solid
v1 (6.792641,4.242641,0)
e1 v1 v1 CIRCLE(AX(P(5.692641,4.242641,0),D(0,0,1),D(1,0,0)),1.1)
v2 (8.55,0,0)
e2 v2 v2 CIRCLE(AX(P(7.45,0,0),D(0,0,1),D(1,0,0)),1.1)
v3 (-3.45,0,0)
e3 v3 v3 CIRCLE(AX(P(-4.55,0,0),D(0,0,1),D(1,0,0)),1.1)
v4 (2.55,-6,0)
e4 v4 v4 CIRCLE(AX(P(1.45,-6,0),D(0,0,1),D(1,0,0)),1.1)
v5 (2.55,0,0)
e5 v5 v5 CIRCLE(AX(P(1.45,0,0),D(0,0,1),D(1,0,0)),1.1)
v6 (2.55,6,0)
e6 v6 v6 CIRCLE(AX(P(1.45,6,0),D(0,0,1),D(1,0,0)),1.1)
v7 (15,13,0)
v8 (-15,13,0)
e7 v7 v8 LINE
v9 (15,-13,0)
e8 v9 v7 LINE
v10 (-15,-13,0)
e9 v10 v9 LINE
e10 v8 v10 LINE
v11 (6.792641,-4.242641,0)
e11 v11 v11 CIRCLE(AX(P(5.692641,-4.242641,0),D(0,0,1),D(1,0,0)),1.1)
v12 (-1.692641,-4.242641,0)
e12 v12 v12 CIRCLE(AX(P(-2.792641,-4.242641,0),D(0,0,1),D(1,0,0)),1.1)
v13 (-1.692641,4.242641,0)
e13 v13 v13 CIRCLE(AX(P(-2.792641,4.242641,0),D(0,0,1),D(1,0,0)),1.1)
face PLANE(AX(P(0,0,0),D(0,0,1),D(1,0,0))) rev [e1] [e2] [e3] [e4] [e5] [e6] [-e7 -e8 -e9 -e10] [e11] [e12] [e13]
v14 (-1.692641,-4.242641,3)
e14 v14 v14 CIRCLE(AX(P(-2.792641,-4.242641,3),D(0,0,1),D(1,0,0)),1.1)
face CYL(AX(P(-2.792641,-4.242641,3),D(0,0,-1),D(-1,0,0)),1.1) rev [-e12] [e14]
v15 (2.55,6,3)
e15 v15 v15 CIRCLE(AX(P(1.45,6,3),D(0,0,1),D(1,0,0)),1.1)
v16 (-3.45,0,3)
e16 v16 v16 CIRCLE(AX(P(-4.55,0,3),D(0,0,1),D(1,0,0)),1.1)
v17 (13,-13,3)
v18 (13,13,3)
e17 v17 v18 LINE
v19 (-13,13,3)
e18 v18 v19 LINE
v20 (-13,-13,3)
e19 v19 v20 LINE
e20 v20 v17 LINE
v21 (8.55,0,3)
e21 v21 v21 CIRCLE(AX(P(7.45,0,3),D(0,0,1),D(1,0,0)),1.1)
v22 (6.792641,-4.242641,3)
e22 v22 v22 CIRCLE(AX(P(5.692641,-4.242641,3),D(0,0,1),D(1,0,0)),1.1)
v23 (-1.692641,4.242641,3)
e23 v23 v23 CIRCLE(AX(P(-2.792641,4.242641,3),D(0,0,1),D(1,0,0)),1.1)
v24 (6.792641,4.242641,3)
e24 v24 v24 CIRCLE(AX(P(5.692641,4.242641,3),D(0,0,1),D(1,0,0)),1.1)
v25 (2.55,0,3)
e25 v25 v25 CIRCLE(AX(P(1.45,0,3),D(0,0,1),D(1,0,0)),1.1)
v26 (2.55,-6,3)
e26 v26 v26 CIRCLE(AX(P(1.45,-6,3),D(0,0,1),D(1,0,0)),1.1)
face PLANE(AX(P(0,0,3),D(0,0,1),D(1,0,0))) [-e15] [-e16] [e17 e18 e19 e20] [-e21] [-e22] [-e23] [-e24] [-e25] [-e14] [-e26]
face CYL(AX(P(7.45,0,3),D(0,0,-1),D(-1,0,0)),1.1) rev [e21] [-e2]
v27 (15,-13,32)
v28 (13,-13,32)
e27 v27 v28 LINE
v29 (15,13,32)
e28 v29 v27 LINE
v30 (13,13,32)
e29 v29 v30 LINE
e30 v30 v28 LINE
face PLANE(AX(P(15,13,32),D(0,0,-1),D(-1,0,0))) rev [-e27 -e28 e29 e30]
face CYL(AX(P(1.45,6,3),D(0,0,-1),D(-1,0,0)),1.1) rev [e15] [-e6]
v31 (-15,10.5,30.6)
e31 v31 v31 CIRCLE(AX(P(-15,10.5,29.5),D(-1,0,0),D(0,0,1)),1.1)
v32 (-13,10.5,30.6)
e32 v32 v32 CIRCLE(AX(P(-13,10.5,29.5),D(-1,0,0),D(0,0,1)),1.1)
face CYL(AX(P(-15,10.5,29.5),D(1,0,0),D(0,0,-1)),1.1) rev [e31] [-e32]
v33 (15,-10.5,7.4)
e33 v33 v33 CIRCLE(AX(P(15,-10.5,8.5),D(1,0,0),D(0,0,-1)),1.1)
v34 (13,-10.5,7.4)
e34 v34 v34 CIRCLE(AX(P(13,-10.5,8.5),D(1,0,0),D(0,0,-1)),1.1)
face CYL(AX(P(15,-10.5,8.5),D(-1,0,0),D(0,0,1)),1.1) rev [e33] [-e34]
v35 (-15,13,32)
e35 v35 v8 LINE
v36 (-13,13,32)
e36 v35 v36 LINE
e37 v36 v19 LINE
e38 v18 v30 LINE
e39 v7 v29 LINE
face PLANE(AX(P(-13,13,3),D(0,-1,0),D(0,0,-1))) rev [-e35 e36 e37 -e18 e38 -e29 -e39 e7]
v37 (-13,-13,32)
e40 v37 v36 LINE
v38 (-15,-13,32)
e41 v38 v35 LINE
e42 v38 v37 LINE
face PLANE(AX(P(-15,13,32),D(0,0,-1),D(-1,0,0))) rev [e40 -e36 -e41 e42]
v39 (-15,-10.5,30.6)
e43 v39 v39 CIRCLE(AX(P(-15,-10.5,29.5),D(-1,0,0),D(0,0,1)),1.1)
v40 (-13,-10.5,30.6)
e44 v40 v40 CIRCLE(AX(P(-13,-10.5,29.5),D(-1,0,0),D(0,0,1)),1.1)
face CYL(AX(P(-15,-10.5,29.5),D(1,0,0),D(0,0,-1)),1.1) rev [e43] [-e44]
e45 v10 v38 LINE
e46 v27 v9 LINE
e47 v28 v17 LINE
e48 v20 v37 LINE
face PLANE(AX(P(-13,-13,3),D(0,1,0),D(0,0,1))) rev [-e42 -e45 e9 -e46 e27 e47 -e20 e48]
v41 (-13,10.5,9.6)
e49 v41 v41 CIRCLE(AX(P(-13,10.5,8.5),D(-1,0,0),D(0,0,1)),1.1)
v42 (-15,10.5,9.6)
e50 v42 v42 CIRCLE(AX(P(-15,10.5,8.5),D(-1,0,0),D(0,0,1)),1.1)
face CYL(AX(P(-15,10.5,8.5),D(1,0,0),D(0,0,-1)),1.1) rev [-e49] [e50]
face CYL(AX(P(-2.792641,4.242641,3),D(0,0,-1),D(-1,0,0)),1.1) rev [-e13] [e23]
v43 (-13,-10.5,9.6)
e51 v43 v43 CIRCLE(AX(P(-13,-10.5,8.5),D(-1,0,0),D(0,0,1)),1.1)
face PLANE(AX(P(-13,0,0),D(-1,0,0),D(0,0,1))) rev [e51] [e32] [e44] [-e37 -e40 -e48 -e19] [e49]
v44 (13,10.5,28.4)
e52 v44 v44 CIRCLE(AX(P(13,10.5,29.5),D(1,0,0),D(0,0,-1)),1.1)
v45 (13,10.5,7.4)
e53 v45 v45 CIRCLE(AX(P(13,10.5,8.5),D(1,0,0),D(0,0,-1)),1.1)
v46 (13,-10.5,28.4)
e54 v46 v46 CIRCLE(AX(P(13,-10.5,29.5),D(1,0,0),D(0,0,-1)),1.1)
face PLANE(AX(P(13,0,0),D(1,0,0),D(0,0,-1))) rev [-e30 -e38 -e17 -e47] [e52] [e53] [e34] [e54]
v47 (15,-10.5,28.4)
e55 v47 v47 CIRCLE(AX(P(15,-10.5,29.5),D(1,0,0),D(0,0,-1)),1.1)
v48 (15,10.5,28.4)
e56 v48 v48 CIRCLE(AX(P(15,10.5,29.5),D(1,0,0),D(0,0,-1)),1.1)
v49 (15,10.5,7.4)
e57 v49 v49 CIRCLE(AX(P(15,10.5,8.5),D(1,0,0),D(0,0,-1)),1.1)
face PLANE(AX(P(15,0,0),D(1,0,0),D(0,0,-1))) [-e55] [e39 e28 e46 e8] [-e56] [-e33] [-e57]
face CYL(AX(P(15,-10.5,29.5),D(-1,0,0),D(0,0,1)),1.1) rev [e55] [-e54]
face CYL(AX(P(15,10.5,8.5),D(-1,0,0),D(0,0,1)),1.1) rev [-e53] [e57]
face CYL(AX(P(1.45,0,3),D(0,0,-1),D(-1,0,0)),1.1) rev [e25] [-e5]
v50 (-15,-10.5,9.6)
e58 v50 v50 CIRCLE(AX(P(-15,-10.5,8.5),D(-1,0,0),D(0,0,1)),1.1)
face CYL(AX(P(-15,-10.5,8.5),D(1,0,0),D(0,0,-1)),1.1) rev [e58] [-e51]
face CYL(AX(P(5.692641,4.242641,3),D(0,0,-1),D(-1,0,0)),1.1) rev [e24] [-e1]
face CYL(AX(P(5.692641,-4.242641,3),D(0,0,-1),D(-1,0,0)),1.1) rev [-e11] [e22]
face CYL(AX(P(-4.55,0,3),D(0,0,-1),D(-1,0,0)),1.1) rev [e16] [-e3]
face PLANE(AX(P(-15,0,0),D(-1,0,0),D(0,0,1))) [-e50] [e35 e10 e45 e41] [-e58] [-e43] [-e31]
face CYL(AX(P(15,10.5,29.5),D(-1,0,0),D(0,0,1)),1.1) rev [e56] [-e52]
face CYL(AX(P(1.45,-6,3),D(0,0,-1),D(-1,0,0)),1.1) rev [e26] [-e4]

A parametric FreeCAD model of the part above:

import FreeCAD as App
import Part
import Sketcher

V = App.Vector
Q = App.Units.Quantity

doc = App.newDocument("Part")
body = doc.addObject("PartDesign::Body", "Body")

# Sketch on XY plane
sketch1 = body.newObject("Sketcher::SketchObject", "Sketch")
sketch1.AttachmentSupport = (doc.getObject("XY_Plane"), [""])
sketch1.MapMode = "FlatFace"
sketch1.addGeometry([
    Part.LineSegment(V(-13, 13, 0), V(-13, -13, 0)),  # 0
    Part.LineSegment(V(-13, -13, 0), V(13, -13, 0)),  # 1
    Part.LineSegment(V(13, -13, 0), V(13, 13, 0)),  # 2
    Part.LineSegment(V(13, 13, 0), V(-13, 13, 0)),  # 3
    Part.Circle(V(-2.792641, -4.242641, 0), V(0, 0, 1), 1.1),  # 4
    Part.Circle(V(1.45, -6, 0), V(0, 0, 1), 1.1),  # 5
    Part.Circle(V(5.692641, -4.242641, 0), V(0, 0, 1), 1.1),  # 6
    Part.Circle(V(-4.55, 0, 0), V(0, 0, 1), 1.1),  # 7
    Part.Circle(V(1.45, 0, 0), V(0, 0, 1), 1.1),  # 8
    Part.Circle(V(-2.792641, 4.242641, 0), V(0, 0, 1), 1.1),  # 9
    Part.Circle(V(1.45, 6, 0), V(0, 0, 1), 1.1),  # 10
    Part.Circle(V(7.45, 0, 0), V(0, 0, 1), 1.1),  # 11
    Part.Circle(V(5.692641, 4.242641, 0), V(0, 0, 1), 1.1),  # 12
], False)
sketch1.addConstraint([
    Sketcher.Constraint("Coincident", 0, 2, 1, 1),
    Sketcher.Constraint("Coincident", 1, 2, 2, 1),
    Sketcher.Constraint("Coincident", 2, 2, 3, 1),
    Sketcher.Constraint("Coincident", 3, 2, 0, 1),
    Sketcher.Constraint("Vertical", 0),
    Sketcher.Constraint("Horizontal", 1),
    Sketcher.Constraint("Vertical", 2),
    Sketcher.Constraint("Horizontal", 3),
    Sketcher.Constraint("Equal", 4, 5),
    Sketcher.Constraint("Equal", 5, 6),
    Sketcher.Constraint("Equal", 6, 7),
    Sketcher.Constraint("Equal", 7, 8),
    Sketcher.Constraint("Equal", 8, 9),
    Sketcher.Constraint("Equal", 9, 10),
    Sketcher.Constraint("Equal", 10, 11),
    Sketcher.Constraint("Equal", 11, 12),
    Sketcher.Constraint("Symmetric", 0, 2, 2, 2, -1, 1),
    Sketcher.Constraint("Symmetric", 4, 3, 9, 3, -1),
    Sketcher.Constraint("Symmetric", 5, 3, 10, 3, -1),
    Sketcher.Constraint("Symmetric", 6, 3, 12, 3, -1),
    Sketcher.Constraint("PointOnObject", 7, 3, -1),
    Sketcher.Constraint("PointOnObject", 8, 3, -1),
    Sketcher.Constraint("PointOnObject", 11, 3, -1),
    Sketcher.Constraint("Horizontal", 4, 3, 6, 3),
    Sketcher.Constraint("Vertical", 5, 3, 8, 3),
    Sketcher.Constraint("Equal", 3, 0),
    Sketcher.Constraint("Diameter", 4, Q("2.2 mm")),
    Sketcher.Constraint("DistanceX", 1, 1, 1, 2, Q("26 mm")),
    Sketcher.Constraint("DistanceY", 5, 3, -1, 1, Q("6 mm")),
    Sketcher.Constraint("DistanceX", 7, 3, 5, 3, Q("6 mm")),
    Sketcher.Constraint("DistanceX", 8, 3, 11, 3, Q("6 mm")),
    Sketcher.Constraint("DistanceX", -1, 1, 5, 3, Q("1.45 mm")),
    Sketcher.Constraint("DistanceX", 4, 3, -1, 1, Q("2.792641 mm")),
    Sketcher.Constraint("DistanceY", 4, 3, -1, 1, Q("4.242641 mm")),
    Sketcher.Constraint("DistanceX", -1, 1, 6, 3, Q("5.692641 mm")),
])
pad1 = body.newObject("PartDesign::Pad", "Pad")
pad1.Profile = sketch1
pad1.Length = 3

# Sketch on YZ plane
sketch2 = body.newObject("Sketcher::SketchObject", "Sketch001")
sketch2.AttachmentSupport = (doc.getObject("YZ_Plane"), [""])
sketch2.MapMode = "FlatFace"
sketch2.AttachmentOffset = App.Placement(V(0, 0, -13), App.Rotation())
sketch2.addGeometry([
    Part.LineSegment(V(13, 0, 0), V(-13, 0, 0)),  # 0
    Part.LineSegment(V(-13, 0, 0), V(-13, 32, 0)),  # 1
    Part.LineSegment(V(-13, 32, 0), V(13, 32, 0)),  # 2
    Part.LineSegment(V(13, 32, 0), V(13, 0, 0)),  # 3
    Part.Circle(V(-10.5, 8.5, 0), V(0, 0, 1), 1.1),  # 4
    Part.Circle(V(-10.5, 29.5, 0), V(0, 0, 1), 1.1),  # 5
    Part.Circle(V(10.5, 8.5, 0), V(0, 0, 1), 1.1),  # 6
    Part.Circle(V(10.5, 29.5, 0), V(0, 0, 1), 1.1),  # 7
], False)
sketch2.addConstraint([
    Sketcher.Constraint("Coincident", 0, 2, 1, 1),
    Sketcher.Constraint("Coincident", 1, 2, 2, 1),
    Sketcher.Constraint("Coincident", 2, 2, 3, 1),
    Sketcher.Constraint("Coincident", 3, 2, 0, 1),
    Sketcher.Constraint("Horizontal", 0),
    Sketcher.Constraint("Vertical", 1),
    Sketcher.Constraint("Horizontal", 2),
    Sketcher.Constraint("Vertical", 3),
    Sketcher.Constraint("Equal", 4, 5),
    Sketcher.Constraint("Equal", 5, 6),
    Sketcher.Constraint("Equal", 6, 7),
    Sketcher.Constraint("Symmetric", 0, 2, 3, 2, -1, 1),
    Sketcher.Constraint("Symmetric", 4, 3, 6, 3, -2),
    Sketcher.Constraint("Symmetric", 5, 3, 7, 3, -2),
    Sketcher.Constraint("Vertical", 4, 3, 5, 3),
    Sketcher.Constraint("Diameter", 4, Q("2.2 mm")),
    Sketcher.Constraint("DistanceX", 0, 2, 0, 1, Q("26 mm")),
    Sketcher.Constraint("DistanceY", 1, 1, 1, 2, Q("32 mm")),
    Sketcher.Constraint("DistanceY", 4, 3, 5, 3, Q("21 mm")),
    Sketcher.Constraint("DistanceX", 4, 3, 6, 3, Q("21 mm")),
    Sketcher.Constraint("DistanceY", -1, 1, 4, 3, Q("8.5 mm")),
])
pad2 = body.newObject("PartDesign::Pad", "Pad001")
pad2.Profile = sketch2
pad2.Length = 2
pad2.Reversed = True

# Sketch on YZ plane
sketch3 = body.newObject("Sketcher::SketchObject", "Sketch002")
sketch3.AttachmentSupport = (doc.getObject("YZ_Plane"), [""])
sketch3.MapMode = "FlatFace"
sketch3.AttachmentOffset = App.Placement(V(0, 0, 15), App.Rotation())
sketch3.addGeometry([
    Part.LineSegment(V(13, 32, 0), V(-13, 32, 0)),  # 0
    Part.LineSegment(V(-13, 32, 0), V(-13, 0, 0)),  # 1
    Part.LineSegment(V(-13, 0, 0), V(13, 0, 0)),  # 2
    Part.LineSegment(V(13, 0, 0), V(13, 32, 0)),  # 3
    Part.Circle(V(-10.5, 29.5, 0), V(0, 0, 1), 1.1),  # 4
    Part.Circle(V(-10.5, 8.5, 0), V(0, 0, 1), 1.1),  # 5
    Part.Circle(V(10.5, 29.5, 0), V(0, 0, 1), 1.1),  # 6
    Part.Circle(V(10.5, 8.5, 0), V(0, 0, 1), 1.1),  # 7
], False)
sketch3.addConstraint([
    Sketcher.Constraint("Coincident", 0, 2, 1, 1),
    Sketcher.Constraint("Coincident", 1, 2, 2, 1),
    Sketcher.Constraint("Coincident", 2, 2, 3, 1),
    Sketcher.Constraint("Coincident", 3, 2, 0, 1),
    Sketcher.Constraint("Horizontal", 0),
    Sketcher.Constraint("Vertical", 1),
    Sketcher.Constraint("Horizontal", 2),
    Sketcher.Constraint("Vertical", 3),
    Sketcher.Constraint("Equal", 4, 5),
    Sketcher.Constraint("Equal", 5, 6),
    Sketcher.Constraint("Equal", 6, 7),
    Sketcher.Constraint("Symmetric", 1, 2, 2, 2, -1, 1),
    Sketcher.Constraint("Symmetric", 4, 3, 6, 3, -2),
    Sketcher.Constraint("Symmetric", 5, 3, 7, 3, -2),
    Sketcher.Constraint("Vertical", 4, 3, 5, 3),
    Sketcher.Constraint("Diameter", 4, Q("2.2 mm")),
    Sketcher.Constraint("DistanceX", 0, 2, 0, 1, Q("26 mm")),
    Sketcher.Constraint("DistanceY", 1, 2, 1, 1, Q("32 mm")),
    Sketcher.Constraint("DistanceY", 5, 3, 4, 3, Q("21 mm")),
    Sketcher.Constraint("DistanceX", 4, 3, 6, 3, Q("21 mm")),
    Sketcher.Constraint("DistanceY", -1, 1, 4, 3, Q("29.5 mm")),
])
pad3 = body.newObject("PartDesign::Pad", "Pad002")
pad3.Profile = sketch3
pad3.Length = 2
pad3.Reversed = True

doc.recompute()
